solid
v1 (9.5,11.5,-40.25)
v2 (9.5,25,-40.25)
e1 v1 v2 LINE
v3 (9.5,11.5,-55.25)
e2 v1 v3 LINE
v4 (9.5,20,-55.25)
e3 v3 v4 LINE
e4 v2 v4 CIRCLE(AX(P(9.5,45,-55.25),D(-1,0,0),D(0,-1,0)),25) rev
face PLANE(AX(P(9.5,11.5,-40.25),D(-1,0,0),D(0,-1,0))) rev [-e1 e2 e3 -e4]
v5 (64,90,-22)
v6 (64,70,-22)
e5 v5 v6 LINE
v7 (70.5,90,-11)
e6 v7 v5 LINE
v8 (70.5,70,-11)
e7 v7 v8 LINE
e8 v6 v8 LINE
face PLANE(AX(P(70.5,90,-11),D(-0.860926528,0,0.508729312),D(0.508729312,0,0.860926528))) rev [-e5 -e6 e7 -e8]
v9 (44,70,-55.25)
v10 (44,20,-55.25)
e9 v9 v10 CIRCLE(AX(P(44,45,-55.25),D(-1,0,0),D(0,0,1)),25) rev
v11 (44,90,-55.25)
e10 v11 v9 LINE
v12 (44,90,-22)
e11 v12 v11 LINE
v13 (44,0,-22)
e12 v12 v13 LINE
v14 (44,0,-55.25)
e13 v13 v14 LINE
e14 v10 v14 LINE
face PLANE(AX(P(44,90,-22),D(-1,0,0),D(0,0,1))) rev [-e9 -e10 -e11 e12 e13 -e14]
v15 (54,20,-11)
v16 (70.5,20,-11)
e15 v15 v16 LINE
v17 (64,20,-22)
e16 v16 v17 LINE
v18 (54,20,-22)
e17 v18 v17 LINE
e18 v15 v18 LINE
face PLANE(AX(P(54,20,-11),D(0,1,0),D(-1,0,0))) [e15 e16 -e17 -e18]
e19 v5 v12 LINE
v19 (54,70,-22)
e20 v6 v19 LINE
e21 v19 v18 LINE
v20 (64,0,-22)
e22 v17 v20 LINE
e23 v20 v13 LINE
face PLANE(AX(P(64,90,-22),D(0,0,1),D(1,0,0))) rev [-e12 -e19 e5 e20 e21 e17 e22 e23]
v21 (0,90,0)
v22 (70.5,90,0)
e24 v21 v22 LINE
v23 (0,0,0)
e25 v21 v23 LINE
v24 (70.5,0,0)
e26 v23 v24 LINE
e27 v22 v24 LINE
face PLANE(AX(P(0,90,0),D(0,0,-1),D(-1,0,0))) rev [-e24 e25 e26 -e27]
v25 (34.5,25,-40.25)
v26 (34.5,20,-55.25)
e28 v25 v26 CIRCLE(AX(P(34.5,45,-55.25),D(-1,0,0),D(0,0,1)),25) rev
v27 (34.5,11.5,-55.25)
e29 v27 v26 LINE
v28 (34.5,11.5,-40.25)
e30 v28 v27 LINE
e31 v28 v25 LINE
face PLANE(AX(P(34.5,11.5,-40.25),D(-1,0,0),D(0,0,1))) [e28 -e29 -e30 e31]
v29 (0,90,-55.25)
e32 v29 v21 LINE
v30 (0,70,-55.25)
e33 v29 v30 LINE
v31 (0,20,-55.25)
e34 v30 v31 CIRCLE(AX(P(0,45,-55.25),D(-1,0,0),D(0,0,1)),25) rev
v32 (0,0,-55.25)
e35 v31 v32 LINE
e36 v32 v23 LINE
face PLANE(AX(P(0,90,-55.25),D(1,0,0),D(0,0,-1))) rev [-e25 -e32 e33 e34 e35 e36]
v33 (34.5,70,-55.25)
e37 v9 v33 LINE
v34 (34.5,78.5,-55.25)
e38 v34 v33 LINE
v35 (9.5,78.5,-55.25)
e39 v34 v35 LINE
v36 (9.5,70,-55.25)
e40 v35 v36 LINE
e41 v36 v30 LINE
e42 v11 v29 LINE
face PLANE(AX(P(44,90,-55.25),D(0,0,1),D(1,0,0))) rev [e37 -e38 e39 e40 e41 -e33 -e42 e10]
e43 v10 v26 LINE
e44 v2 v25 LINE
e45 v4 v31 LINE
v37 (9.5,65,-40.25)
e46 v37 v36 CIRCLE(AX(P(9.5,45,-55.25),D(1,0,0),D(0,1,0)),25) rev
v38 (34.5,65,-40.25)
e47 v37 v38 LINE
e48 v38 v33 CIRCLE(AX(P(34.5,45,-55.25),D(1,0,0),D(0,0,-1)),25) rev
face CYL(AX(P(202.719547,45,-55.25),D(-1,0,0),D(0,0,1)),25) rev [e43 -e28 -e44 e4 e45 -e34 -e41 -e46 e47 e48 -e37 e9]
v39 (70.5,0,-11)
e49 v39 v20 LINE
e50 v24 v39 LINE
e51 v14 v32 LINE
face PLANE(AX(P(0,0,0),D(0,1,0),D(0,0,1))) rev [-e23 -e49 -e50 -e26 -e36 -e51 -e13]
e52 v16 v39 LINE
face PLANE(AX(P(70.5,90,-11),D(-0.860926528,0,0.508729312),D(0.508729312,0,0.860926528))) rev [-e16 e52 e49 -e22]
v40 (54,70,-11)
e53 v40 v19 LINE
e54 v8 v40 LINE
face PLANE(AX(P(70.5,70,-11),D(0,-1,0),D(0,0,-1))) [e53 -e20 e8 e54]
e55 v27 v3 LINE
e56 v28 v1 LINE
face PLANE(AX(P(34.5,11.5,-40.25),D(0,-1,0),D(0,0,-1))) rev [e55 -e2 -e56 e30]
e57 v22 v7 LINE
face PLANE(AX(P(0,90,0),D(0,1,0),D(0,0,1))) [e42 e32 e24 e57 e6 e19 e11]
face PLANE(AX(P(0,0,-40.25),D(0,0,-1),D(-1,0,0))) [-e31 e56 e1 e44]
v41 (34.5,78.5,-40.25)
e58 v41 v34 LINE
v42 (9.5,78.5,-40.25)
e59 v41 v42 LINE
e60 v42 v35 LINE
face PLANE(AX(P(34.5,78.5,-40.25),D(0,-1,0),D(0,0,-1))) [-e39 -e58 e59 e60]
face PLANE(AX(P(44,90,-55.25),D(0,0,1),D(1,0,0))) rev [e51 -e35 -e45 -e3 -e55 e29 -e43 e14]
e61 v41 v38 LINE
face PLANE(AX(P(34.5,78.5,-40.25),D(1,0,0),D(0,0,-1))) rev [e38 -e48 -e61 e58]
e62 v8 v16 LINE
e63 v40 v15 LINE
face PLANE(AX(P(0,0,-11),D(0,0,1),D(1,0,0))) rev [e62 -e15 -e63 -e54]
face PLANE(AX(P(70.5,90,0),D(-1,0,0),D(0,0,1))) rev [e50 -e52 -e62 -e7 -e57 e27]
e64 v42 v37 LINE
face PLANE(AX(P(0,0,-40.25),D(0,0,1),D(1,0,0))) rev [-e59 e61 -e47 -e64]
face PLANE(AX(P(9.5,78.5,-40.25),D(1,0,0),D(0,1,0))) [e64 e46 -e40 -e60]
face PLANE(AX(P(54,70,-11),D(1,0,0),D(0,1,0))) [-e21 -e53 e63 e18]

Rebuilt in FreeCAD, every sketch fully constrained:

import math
import FreeCAD as App
import Part
import Sketcher
from FreeCAD import Vector
Q = App.Units.Quantity


def add_polygon(sketch, points):
    """Adds a closed chain of lines whose ends are joined by coincident constraints."""
    first, n = sketch.GeometryCount, len(points)
    for a, b in zip(points, points[1:] + points[:1]):
        sketch.addGeometry(Part.LineSegment(App.Vector(*a, 0), App.Vector(*b, 0)), False)
    for i in range(n):
        sketch.addConstraint(Sketcher.Constraint("Coincident", first + i, 2, first + (i + 1) % n, 1))

doc = App.newDocument("Part")
body = doc.addObject("PartDesign::Body", "Body")

sketch1 = body.newObject("Sketcher::SketchObject", "Sketch")
sketch1.AttachmentSupport = (doc.getObject("XZ_Plane"), [""])
sketch1.MapMode = "FlatFace"
add_polygon(sketch1, [(0, 0), (70, 0), (70, -11), (64, -22), (44, -22), (44, -55), (0, -55)])
sketch1.addConstraint([
    Sketcher.Constraint("Horizontal", 0),
    Sketcher.Constraint("Vertical", 1),
    Sketcher.Constraint("Horizontal", 3),
    Sketcher.Constraint("Vertical", 4),
    Sketcher.Constraint("Horizontal", 5),
    Sketcher.Constraint("Vertical", 6),
    Sketcher.Constraint("Coincident", 6, 2, -1, 1),
    Sketcher.Constraint("DistanceX", 3, 2, 3, 1, Q("20 mm")),
    Sketcher.Constraint("DistanceX", 5, 2, 5, 1, Q("44 mm")),
    Sketcher.Constraint("DistanceY", 1, 2, 1, 1, Q("11 mm")),
    Sketcher.Constraint("DistanceX", 0, 1, 0, 2, Q("70.5 mm")),
    Sketcher.Constraint("DistanceY", 2, 2, -1, 1, Q("22 mm")),
    Sketcher.Constraint("DistanceY", 4, 2, 4, 1, Q("33.25 mm")),
])
pad1 = body.newObject("PartDesign::Pad", "Pad")
pad1.Profile = sketch1
pad1.Length = 90
pad1.Reversed = True

sketch2 = body.newObject("Sketcher::SketchObject", "Sketch001")
sketch2.AttachmentSupport = (doc.getObject("YZ_Plane"), [""])
sketch2.MapMode = "FlatFace"
sketch2.AttachmentOffset = App.Placement(Vector(0, 0, 44), App.Rotation())
sketch2.addGeometry([
    Part.ArcOfCircle(Part.Circle(Vector(45, -55, 0), Vector(0, 0, 1), 25), math.radians(0), math.radians(180)),
    Part.LineSegment(Vector(20, -55, 0), Vector(20, -620, 0)),
    Part.LineSegment(Vector(20, -620, 0), Vector(70, -620, 0)),
    Part.LineSegment(Vector(70, -620, 0), Vector(70, -55, 0)),
], False)
sketch2.addConstraint([
    Sketcher.Constraint("Tangent", 0, 2, 1, 1),
    Sketcher.Constraint("Coincident", 1, 2, 2, 1),
    Sketcher.Constraint("Coincident", 2, 2, 3, 1),
    Sketcher.Constraint("Tangent", 3, 2, 0, 1),
    Sketcher.Constraint("Vertical", 1),
    Sketcher.Constraint("Horizontal", 2),
    Sketcher.Constraint("Vertical", 3),
    Sketcher.Constraint("Radius", 0, Q("25 mm")),
    Sketcher.Constraint("DistanceX", -1, 1, 0, 3, Q("45 mm")),
    Sketcher.Constraint("DistanceY", 0, 3, -1, 1, Q("55.25 mm")),
    Sketcher.Constraint("DistanceY", 1, 2, 1, 1, Q("565.062847 mm")),
])
pocket1 = body.newObject("PartDesign::Pocket", "Pocket")
pocket1.Profile = sketch2
pocket1.Type = "ThroughAll"
pocket1.Midplane = True

sketch3 = body.newObject("Sketcher::SketchObject", "Sketch002")
sketch3.AttachmentSupport = (doc.getObject("XY_Plane"), [""])
sketch3.MapMode = "FlatFace"
sketch3.AttachmentOffset = App.Placement(Vector(0, 0, -55.25), App.Rotation())
add_polygon(sketch3, [(34, 78), (34, 64), (10, 64), (10, 78)])
add_polygon(sketch3, [(34, 26), (34, 12), (10, 12), (10, 26)])
sketch3.addConstraint([
    Sketcher.Constraint("Vertical", 0),
    Sketcher.Constraint("Horizontal", 1),
    Sketcher.Constraint("Vertical", 2),
    Sketcher.Constraint("Horizontal", 3),
    Sketcher.Constraint("Vertical", 4),
    Sketcher.Constraint("Horizontal", 5),
    Sketcher.Constraint("Vertical", 6),
    Sketcher.Constraint("Horizontal", 7),
    Sketcher.Constraint("Vertical", 3, 2, 4, 2),
    Sketcher.Constraint("Vertical", 2, 2, 5, 2),
    Sketcher.Constraint("Equal", 2, 4),
    Sketcher.Constraint("DistanceX", 1, 2, 1, 1, Q("25 mm")),
    Sketcher.Constraint("DistanceY", 0, 2, 0, 1, Q("15 mm")),
    Sketcher.Constraint("DistanceY", 4, 2, 0, 2, Q("52 mm")),
    Sketcher.Constraint("DistanceX", -1, 1, 0, 2, Q("34.5 mm")),
    Sketcher.Constraint("DistanceY", -1, 1, 0, 2, Q("63.5 mm")),
])
pocket2 = body.newObject("PartDesign::Pocket", "Pocket001")
pocket2.Profile = sketch3
pocket2.Length = 15
pocket2.Reversed = True

sketch4 = body.newObject("Sketcher::SketchObject", "Sketch003")
sketch4.AttachmentSupport = (doc.getObject("XY_Plane"), [""])
sketch4.MapMode = "FlatFace"
sketch4.AttachmentOffset = App.Placement(Vector(0, 0, -22), App.Rotation())
add_polygon(sketch4, [(70, 70), (70, 20), (54, 20), (54, 70)])
sketch4.addConstraint([
    Sketcher.Constraint("Vertical", 0),
    Sketcher.Constraint("Horizontal", 1),
    Sketcher.Constraint("Vertical", 2),
    Sketcher.Constraint("Horizontal", 3),
    Sketcher.Constraint("DistanceY", 0, 2, 0, 1, Q("50 mm")),
    Sketcher.Constraint("DistanceX", 1, 2, 1, 1, Q("16.5 mm")),
    Sketcher.Constraint("DistanceY", -1, 1, 0, 2, Q("20 mm")),
    Sketcher.Constraint("DistanceX", -1, 1, 1, 2, Q("54 mm")),
])
pocket3 = body.newObject("PartDesign::Pocket", "Pocket002")
pocket3.Profile = sketch4
pocket3.Length = 11
pocket3.Reversed = True

doc.recompute()
